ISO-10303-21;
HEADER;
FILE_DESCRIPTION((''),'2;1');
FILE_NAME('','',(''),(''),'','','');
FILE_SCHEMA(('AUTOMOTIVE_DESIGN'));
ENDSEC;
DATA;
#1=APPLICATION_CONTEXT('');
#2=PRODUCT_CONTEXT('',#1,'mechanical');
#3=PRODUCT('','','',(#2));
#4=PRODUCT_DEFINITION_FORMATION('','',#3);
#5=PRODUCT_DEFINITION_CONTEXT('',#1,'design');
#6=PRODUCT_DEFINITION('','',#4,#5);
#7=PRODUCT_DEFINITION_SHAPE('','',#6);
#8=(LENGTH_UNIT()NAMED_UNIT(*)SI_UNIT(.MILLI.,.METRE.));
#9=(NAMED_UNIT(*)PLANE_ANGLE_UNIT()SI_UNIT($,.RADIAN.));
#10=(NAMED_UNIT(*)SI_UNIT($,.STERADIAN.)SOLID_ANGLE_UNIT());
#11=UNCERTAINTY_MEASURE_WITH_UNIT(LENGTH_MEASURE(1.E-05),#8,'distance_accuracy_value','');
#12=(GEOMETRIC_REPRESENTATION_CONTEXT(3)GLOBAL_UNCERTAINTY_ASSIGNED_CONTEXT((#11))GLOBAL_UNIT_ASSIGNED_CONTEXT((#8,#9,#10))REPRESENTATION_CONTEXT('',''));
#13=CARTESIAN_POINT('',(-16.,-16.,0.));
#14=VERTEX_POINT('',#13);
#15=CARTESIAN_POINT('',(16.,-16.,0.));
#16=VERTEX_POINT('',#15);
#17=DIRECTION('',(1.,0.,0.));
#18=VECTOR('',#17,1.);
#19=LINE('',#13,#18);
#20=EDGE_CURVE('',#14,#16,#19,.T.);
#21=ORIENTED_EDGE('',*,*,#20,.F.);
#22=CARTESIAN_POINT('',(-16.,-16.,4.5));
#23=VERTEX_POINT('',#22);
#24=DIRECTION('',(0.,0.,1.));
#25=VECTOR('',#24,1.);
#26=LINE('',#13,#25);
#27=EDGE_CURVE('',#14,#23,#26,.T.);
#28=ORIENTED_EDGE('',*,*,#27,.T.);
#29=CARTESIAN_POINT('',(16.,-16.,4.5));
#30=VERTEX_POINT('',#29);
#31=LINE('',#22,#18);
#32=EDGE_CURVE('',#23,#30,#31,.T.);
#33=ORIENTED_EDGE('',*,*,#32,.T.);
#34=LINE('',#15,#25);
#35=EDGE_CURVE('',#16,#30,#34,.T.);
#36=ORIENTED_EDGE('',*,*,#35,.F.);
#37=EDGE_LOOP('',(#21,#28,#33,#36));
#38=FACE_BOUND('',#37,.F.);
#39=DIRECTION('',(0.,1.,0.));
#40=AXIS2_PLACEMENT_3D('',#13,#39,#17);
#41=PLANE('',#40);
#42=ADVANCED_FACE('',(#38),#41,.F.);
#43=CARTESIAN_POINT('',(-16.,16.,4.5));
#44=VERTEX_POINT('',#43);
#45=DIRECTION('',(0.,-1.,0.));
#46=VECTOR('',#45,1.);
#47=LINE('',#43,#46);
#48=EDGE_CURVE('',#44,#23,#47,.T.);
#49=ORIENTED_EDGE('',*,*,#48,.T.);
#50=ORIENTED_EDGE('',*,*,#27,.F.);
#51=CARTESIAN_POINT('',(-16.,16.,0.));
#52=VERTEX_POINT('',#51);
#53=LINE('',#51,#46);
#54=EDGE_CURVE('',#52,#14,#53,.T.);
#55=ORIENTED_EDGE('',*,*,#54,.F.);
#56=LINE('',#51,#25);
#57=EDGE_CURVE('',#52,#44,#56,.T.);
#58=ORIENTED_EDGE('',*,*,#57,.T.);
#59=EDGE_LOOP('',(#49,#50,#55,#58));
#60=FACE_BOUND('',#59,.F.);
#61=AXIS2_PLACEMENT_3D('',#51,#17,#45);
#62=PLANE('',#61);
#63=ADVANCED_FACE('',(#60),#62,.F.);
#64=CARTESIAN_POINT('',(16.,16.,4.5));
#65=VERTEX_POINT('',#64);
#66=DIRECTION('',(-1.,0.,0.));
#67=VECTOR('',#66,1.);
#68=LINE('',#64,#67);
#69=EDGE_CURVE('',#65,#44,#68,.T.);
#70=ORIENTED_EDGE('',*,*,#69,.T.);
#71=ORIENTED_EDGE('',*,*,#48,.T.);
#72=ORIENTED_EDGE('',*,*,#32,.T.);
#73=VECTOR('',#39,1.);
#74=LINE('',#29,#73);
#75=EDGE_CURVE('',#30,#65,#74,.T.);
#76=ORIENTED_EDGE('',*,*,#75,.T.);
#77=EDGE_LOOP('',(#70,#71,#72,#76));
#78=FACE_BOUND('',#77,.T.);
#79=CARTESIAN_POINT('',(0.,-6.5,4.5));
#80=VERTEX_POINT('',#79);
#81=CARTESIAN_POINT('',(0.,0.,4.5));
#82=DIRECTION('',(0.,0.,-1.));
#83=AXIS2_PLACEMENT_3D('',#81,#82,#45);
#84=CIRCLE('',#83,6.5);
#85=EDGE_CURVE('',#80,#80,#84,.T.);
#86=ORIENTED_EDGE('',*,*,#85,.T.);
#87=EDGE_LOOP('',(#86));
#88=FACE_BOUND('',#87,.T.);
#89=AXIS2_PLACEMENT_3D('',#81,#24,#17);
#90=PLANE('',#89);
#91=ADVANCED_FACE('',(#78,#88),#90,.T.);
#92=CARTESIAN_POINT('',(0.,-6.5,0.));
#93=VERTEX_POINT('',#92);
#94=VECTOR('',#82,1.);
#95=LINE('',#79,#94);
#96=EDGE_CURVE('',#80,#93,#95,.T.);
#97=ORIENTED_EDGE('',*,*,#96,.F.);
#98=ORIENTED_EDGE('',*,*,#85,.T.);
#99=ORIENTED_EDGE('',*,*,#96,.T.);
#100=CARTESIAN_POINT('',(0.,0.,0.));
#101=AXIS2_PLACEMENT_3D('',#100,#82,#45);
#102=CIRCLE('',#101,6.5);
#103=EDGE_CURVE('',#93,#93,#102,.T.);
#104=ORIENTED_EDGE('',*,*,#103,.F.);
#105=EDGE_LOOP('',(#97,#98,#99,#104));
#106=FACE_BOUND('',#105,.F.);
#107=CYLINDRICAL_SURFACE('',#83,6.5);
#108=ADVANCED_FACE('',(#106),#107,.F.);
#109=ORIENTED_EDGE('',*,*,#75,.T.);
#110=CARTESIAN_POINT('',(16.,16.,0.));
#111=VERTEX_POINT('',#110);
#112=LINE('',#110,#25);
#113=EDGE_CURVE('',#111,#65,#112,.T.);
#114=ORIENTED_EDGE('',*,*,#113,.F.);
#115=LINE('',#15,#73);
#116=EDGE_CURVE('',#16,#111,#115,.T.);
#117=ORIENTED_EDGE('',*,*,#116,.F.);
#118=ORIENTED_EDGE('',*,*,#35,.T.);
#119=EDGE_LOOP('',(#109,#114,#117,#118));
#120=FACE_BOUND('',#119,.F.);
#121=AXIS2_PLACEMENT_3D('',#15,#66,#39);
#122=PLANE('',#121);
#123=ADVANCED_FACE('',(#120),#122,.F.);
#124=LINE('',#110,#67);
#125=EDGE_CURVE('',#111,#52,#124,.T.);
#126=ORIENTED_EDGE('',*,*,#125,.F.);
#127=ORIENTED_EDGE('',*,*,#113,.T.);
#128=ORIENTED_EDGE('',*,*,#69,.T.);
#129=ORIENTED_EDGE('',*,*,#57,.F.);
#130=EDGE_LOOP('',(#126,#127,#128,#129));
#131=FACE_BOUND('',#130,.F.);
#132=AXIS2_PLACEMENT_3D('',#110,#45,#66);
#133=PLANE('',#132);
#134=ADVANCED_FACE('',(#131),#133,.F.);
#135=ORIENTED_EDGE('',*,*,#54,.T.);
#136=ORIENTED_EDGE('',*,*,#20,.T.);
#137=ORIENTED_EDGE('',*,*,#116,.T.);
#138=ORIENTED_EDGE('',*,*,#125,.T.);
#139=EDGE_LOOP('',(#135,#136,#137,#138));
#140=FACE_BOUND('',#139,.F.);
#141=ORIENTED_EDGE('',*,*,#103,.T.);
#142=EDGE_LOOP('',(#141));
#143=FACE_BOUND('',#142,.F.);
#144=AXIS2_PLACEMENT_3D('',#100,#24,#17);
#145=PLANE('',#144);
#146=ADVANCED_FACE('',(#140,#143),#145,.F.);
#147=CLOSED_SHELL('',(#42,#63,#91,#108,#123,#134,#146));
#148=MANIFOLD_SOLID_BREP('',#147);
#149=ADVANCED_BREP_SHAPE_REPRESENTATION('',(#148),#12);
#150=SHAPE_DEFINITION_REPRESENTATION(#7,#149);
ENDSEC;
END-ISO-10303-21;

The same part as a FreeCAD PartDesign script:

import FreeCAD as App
import Part
import Sketcher


def add_polygon(sketch, points):
    """Adds a closed chain of lines whose ends are joined by coincident constraints."""
    first, n = sketch.GeometryCount, len(points)
    for a, b in zip(points, points[1:] + points[:1]):
        sketch.addGeometry(Part.LineSegment(App.Vector(*a, 0), App.Vector(*b, 0)), False)
    for i in range(n):
        sketch.addConstraint(Sketcher.Constraint("Coincident", first + i, 2, first + (i + 1) % n, 1))

doc = App.newDocument("Part")
body = doc.addObject("PartDesign::Body", "Body")

sketch1 = doc.addObject("Sketcher::SketchObject", "Sketch")
body.addObject(sketch1)
sketch1.AttachmentSupport = (doc.XY_Plane, [""])
sketch1.MapMode = "FlatFace"
add_polygon(sketch1, [(-16, 16), (-16, -16), (16, -16), (16, 16)])
sketch1.addConstraint([
    Sketcher.Constraint("Vertical", 0),
    Sketcher.Constraint("Horizontal", 1),
    Sketcher.Constraint("Vertical", 2),
    Sketcher.Constraint("Horizontal", 3),
    Sketcher.Constraint("Symmetric", 0, 2, 2, 2, -1, 1),
    Sketcher.Constraint("Equal", 3, 0),
    Sketcher.Constraint("DistanceX", 1, 1, 1, 2, 32.0),
])
pad1 = doc.addObject("PartDesign::Pad", "Pad")
body.addObject(pad1)
pad1.Profile = sketch1
pad1.Length = 4.5

sketch2 = doc.addObject("Sketcher::SketchObject", "Sketch001")
body.addObject(sketch2)
sketch2.AttachmentSupport = (doc.XY_Plane, [""])
sketch2.MapMode = "FlatFace"
sketch2.AttachmentOffset = App.Placement(App.Vector(0, 0, 4.5), App.Rotation())
sketch2.addGeometry(Part.Circle(App.Vector(0, 0, 0), App.Vector(0, 0, 1), 6), False)
sketch2.addConstraint([
    Sketcher.Constraint("Coincident", 0, 3, -1, 1),
    Sketcher.Constraint("Diameter", 0, 13.0),
])
doc.recompute()
hole = doc.addObject("PartDesign::Hole", "Hole")
body.addObject(hole)
hole.Profile = sketch2
hole.ThreadType = "None"
hole.Diameter = 13
hole.DepthType = "ThroughAll"

doc.recompute()
